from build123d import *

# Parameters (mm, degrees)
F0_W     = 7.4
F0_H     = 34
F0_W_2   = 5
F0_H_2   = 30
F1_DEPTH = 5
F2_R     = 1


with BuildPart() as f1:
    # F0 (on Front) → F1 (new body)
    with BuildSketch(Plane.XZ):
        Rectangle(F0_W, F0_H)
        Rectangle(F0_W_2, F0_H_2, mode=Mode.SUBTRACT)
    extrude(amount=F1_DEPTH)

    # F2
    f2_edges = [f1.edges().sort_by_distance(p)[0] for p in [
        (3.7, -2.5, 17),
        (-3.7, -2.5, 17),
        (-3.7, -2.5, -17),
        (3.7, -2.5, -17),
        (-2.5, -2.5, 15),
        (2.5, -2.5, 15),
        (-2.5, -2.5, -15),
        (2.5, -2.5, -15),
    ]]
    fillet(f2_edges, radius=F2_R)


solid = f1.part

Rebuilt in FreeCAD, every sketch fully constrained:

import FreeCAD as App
import Part
import Sketcher
from FreeCAD import Vector


def edges_at(feature, points):
    """Names of the edges that pass closest to the given points."""
    edges = feature.Shape.Edges
    near = lambda p: min(range(len(edges)), key=lambda i: edges[i].distToShape(Part.Vertex(*p))[0])
    return sorted({f"Edge{near(p) + 1}" for p in points})


def add_polygon(sketch, points):
    """Adds a closed chain of lines whose ends are joined by coincident constraints."""
    first, n = sketch.GeometryCount, len(points)
    for a, b in zip(points, points[1:] + points[:1]):
        sketch.addGeometry(Part.LineSegment(App.Vector(*a, 0), App.Vector(*b, 0)), False)
    for i in range(n):
        sketch.addConstraint(Sketcher.Constraint("Coincident", first + i, 2, first + (i + 1) % n, 1))

doc = App.newDocument("Part")
body = doc.addObject("PartDesign::Body", "Body")

# Sketch on XZ plane
sketch1 = body.newObject("Sketcher::SketchObject", "Sketch")
sketch1.AttachmentSupport = (doc.getObject("XZ_Plane"), [""])
sketch1.MapMode = "FlatFace"
add_polygon(sketch1, [(-4, 17), (-4, -17), (4, -17), (4, 17)])  # lines 0-3
add_polygon(sketch1, [(2, -15), (-2, -15), (-2, 15), (2, 15)])  # lines 4-7
sketch1.addConstraint([
    Sketcher.Constraint("Vertical", 0),
    Sketcher.Constraint("Horizontal", 1),
    Sketcher.Constraint("Vertical", 2),
    Sketcher.Constraint("Horizontal", 3),
    Sketcher.Constraint("Horizontal", 4),
    Sketcher.Constraint("Vertical", 5),
    Sketcher.Constraint("Horizontal", 6),
    Sketcher.Constraint("Vertical", 7),
    Sketcher.Constraint("Symmetric", 0, 2, 2, 2, -1, 1),
    Sketcher.Constraint("Symmetric", 4, 2, 6, 2, -1, 1),
    Sketcher.Constraint("DistanceX", 4, 2, 4, 1, 5.0),
    Sketcher.Constraint("DistanceY", 0, 2, 0, 1, 34.0),
    Sketcher.Constraint("DistanceY", 5, 1, 5, 2, 30.0),
    Sketcher.Constraint("DistanceX", 1, 1, 1, 2, 7.4),
])
pad1 = body.newObject("PartDesign::Pad", "Pad")
pad1.Profile = sketch1
pad1.Length = 5
doc.recompute()

fillet = body.newObject("PartDesign::Fillet", "Fillet")
fillet.Base = (pad1, edges_at(pad1, [
    (3.7, -2.5, 17),
    (-3.7, -2.5, 17),
    (-3.7, -2.5, -17),
    (3.7, -2.5, -17),
    (-2.5, -2.5, 15),
    (2.5, -2.5, 15),
    (-2.5, -2.5, -15),
    (2.5, -2.5, -15),
]))
fillet.Radius = 1

doc.recompute()
